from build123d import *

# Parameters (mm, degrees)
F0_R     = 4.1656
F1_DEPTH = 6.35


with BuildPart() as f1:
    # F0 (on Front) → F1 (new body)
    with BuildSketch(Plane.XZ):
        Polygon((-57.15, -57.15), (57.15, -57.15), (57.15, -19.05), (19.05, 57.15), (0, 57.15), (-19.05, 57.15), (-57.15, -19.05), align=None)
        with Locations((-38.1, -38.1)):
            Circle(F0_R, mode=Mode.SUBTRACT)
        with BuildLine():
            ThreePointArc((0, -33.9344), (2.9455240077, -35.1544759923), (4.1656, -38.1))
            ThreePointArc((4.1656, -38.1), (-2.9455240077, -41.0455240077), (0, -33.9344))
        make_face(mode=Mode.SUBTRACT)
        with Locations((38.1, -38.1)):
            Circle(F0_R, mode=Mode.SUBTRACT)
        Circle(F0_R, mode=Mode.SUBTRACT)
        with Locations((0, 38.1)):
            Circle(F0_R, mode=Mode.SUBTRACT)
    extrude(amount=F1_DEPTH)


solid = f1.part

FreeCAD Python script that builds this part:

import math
import FreeCAD as App
import Part
import Sketcher
Q = App.Units.Quantity


def add_polygon(sketch, points):
    """Adds a closed chain of lines whose ends are joined by coincident constraints."""
    first, n = sketch.GeometryCount, len(points)
    for a, b in zip(points, points[1:] + points[:1]):
        sketch.addGeometry(Part.LineSegment(App.Vector(*a, 0), App.Vector(*b, 0)), False)
    for i in range(n):
        sketch.addConstraint(Sketcher.Constraint("Coincident", first + i, 2, first + (i + 1) % n, 1))

doc = App.newDocument("Part")
body = doc.addObject("PartDesign::Body", "Body")

# Sketch on XZ plane
sketch1 = body.newObject("Sketcher::SketchObject", "Sketch")
sketch1.AttachmentSupport = (doc.getObject("XZ_Plane"), [""])
sketch1.MapMode = "FlatFace"
add_polygon(sketch1, [(-57.1, -57.1), (57.1, -57.1), (57.1, -19.1), (19.1, 57.1), (-19.1, 57.1), (-57.1, -19.1)])  # lines 0-5
sketch1.addGeometry(Part.Circle(App.Vector(-38.1, -38.1, 0), App.Vector(0, 0, 1), 4.2), False)  # 6
sketch1.addGeometry(Part.ArcOfCircle(Part.Circle(App.Vector(0, -38.1, 0), App.Vector(0, 0, 1), 4.2), math.radians(90), math.radians(360)), False)  # 7
sketch1.addGeometry(Part.ArcOfCircle(Part.Circle(App.Vector(0, -38.1, 0), App.Vector(0, 0, 1), 4.2), math.radians(0), math.radians(90)), False)  # 8
sketch1.addGeometry(Part.Circle(App.Vector(38.1, -38.1, 0), App.Vector(0, 0, 1), 4.2), False)  # 9
sketch1.addGeometry(Part.Circle(App.Vector(0, 0, 0), App.Vector(0, 0, 1), 4.2), False)  # 10
sketch1.addGeometry(Part.Circle(App.Vector(0, 38.1, 0), App.Vector(0, 0, 1), 4.2), False)  # 11
sketch1.addConstraint(Sketcher.Constraint("Tangent", 7, 1, 8, 2))
sketch1.addConstraint(Sketcher.Constraint("Coincident", 8, 1, 7, 2))
sketch1.addConstraint(Sketcher.Constraint("Horizontal", 0))
sketch1.addConstraint(Sketcher.Constraint("Vertical", 1))
sketch1.addConstraint(Sketcher.Constraint("Horizontal", 3))
sketch1.addConstraint(Sketcher.Constraint("Vertical", 5))
sketch1.addConstraint(Sketcher.Constraint("Coincident", 10, 3, -1, 1))
sketch1.addConstraint(Sketcher.Constraint("Equal", 6, 7))
sketch1.addConstraint(Sketcher.Constraint("Equal", 8, 9))
sketch1.addConstraint(Sketcher.Constraint("Equal", 9, 10))
sketch1.addConstraint(Sketcher.Constraint("Equal", 10, 11))
sketch1.addConstraint(Sketcher.Constraint("Symmetric", 7, 3, 11, 3, -1, 1))
sketch1.addConstraint(Sketcher.Constraint("Symmetric", 6, 3, 9, 3, -2))
sketch1.addConstraint(Sketcher.Constraint("Symmetric", 1, 2, 4, 2, -2))
sketch1.addConstraint(Sketcher.Constraint("PointOnObject", 7, 3, -2))
sketch1.addConstraint(Sketcher.Constraint("PointOnObject", 7, 1, -2))
sketch1.addConstraint(Sketcher.Constraint("Horizontal", 6, 3, 7, 3))
sketch1.addConstraint(Sketcher.Constraint("Horizontal", 9, 3, 8, 1))
sketch1.addConstraint(Sketcher.Constraint("Equal", 3, 1))
sketch1.addConstraint(Sketcher.Constraint("Equal", 2, 4))
sketch1.addConstraint(Sketcher.Constraint("Diameter", 6, Q("0.328 in")))
sketch1.addConstraint(Sketcher.Constraint("DistanceX", 0, 1, 0, 2, Q("4.5 in")))
sketch1.addConstraint(Sketcher.Constraint("DistanceX", 3, 2, 3, 1, Q("1.5 in")))
sketch1.addConstraint(Sketcher.Constraint("DistanceX", 6, 3, 9, 3, Q("3 in")))
sketch1.addConstraint(Sketcher.Constraint("DistanceY", 7, 3, 11, 3, Q("3 in")))
sketch1.addConstraint(Sketcher.Constraint("DistanceY", 1, 2, 2, 2, Q("3 in")))
sketch1.addConstraint(Sketcher.Constraint("DistanceY", 0, 2, -1, 1, Q("2.25 in")))
pad1 = body.newObject("PartDesign::Pad", "Pad")
pad1.Profile = sketch1
pad1.Length = Q("0.25 in")

doc.recompute()
